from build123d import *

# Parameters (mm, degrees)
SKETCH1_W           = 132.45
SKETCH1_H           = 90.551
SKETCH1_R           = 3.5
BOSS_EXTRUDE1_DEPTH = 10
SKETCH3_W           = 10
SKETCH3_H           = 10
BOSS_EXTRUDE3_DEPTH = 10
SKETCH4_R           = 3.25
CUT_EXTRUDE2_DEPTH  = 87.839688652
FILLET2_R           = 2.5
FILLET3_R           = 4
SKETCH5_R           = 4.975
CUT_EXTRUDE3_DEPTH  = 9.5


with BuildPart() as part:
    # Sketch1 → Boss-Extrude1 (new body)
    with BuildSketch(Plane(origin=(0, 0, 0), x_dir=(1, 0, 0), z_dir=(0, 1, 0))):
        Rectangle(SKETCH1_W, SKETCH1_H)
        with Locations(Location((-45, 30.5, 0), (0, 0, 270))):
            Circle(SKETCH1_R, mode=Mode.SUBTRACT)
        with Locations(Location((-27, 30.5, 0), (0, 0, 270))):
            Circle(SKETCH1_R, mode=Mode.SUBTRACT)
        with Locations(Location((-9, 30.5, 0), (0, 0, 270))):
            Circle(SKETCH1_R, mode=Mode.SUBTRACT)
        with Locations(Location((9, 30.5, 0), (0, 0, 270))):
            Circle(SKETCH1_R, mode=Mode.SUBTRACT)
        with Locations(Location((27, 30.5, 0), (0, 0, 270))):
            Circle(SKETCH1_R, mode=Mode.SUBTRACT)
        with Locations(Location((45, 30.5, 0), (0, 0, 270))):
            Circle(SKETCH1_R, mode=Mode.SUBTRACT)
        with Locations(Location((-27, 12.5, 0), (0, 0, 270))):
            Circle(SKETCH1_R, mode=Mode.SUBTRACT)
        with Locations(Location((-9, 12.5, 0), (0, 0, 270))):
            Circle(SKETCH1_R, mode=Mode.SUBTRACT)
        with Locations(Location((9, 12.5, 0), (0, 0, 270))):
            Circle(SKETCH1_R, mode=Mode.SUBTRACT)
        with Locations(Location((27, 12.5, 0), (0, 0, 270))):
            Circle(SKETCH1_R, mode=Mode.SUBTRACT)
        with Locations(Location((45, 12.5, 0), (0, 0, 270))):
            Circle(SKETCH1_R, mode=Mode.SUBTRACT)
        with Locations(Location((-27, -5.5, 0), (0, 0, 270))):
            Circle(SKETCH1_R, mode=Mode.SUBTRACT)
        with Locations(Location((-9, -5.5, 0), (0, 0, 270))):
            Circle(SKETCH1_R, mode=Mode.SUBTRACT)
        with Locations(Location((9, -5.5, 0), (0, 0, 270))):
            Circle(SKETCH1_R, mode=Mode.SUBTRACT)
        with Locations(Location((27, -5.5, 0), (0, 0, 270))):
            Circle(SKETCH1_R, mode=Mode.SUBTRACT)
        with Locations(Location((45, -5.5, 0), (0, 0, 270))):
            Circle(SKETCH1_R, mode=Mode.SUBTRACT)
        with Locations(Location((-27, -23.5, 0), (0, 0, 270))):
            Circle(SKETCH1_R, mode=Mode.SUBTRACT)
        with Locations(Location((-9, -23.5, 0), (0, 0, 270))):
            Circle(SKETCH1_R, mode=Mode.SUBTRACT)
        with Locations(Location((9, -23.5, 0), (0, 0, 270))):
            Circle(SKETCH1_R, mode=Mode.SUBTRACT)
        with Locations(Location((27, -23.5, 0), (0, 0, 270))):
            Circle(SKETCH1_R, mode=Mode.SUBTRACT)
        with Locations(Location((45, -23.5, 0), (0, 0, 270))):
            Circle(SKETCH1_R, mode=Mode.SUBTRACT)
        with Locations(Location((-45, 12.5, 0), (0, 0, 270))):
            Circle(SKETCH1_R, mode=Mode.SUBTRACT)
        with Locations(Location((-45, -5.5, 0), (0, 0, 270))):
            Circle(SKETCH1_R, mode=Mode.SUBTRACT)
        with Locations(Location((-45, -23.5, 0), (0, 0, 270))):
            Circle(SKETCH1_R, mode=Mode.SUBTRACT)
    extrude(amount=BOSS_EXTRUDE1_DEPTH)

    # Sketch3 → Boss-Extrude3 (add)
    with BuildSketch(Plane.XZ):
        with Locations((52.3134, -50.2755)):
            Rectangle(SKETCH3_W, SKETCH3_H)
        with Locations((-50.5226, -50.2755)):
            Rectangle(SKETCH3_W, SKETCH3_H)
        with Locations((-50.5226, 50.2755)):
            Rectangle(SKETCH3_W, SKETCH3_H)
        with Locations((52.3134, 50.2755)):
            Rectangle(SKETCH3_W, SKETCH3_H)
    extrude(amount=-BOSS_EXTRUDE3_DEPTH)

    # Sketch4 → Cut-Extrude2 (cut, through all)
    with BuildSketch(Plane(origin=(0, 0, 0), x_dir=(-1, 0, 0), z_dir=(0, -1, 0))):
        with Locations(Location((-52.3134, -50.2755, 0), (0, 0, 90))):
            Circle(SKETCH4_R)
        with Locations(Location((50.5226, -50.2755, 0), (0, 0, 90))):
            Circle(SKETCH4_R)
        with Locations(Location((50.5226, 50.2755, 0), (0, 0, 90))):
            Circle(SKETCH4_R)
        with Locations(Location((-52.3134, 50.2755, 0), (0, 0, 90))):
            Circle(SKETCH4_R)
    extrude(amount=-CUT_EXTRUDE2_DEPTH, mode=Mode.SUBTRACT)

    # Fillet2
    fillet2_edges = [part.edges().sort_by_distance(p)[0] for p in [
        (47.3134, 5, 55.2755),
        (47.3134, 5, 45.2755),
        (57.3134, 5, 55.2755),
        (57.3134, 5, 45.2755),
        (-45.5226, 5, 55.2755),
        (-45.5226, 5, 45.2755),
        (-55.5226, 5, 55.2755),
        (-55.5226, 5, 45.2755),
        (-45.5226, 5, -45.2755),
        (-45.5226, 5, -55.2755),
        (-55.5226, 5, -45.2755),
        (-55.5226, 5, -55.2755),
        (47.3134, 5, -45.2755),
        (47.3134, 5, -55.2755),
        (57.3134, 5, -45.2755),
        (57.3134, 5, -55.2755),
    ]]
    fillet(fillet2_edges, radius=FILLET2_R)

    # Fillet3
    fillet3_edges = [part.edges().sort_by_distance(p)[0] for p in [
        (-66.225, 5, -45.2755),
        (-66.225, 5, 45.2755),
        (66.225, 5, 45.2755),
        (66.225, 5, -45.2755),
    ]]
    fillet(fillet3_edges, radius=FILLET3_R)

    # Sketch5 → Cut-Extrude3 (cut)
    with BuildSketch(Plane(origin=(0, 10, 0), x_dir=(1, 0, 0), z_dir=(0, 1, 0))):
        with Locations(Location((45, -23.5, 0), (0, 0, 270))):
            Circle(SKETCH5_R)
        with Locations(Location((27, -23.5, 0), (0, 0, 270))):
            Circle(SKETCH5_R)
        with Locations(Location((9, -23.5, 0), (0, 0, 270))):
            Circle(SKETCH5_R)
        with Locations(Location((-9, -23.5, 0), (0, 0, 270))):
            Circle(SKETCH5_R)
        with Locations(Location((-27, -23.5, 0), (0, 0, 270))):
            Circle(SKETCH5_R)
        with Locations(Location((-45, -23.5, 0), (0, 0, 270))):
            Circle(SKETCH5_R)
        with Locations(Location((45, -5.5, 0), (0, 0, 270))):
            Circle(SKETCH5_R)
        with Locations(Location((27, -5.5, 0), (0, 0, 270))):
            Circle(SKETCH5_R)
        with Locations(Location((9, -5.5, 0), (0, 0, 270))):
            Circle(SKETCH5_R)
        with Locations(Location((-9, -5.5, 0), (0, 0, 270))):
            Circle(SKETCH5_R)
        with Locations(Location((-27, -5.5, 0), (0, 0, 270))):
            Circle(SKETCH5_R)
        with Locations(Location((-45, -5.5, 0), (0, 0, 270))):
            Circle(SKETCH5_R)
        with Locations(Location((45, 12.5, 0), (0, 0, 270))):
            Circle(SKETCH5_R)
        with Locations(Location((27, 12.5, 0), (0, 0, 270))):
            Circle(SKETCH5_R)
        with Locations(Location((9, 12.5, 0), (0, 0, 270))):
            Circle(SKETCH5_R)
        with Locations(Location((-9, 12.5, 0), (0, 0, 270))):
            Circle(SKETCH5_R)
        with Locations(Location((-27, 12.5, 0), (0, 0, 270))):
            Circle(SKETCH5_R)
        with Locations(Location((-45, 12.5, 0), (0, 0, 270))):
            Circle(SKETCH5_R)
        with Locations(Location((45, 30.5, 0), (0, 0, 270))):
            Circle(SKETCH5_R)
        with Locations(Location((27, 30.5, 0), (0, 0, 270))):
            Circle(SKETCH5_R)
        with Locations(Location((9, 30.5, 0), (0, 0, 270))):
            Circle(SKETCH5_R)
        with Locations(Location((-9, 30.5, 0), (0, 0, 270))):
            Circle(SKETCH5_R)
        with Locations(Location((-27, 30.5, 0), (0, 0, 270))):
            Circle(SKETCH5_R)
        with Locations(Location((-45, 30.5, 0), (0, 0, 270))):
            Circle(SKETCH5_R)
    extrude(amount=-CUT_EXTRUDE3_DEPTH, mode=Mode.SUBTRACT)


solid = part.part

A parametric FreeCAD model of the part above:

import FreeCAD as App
import Part
import Sketcher
Q = App.Units.Quantity


def edges_at(feature, points):
    """Names of the edges that pass closest to the given points."""
    edges = feature.Shape.Edges
    near = lambda p: min(range(len(edges)), key=lambda i: edges[i].distToShape(Part.Vertex(*p))[0])
    return sorted({f"Edge{near(p) + 1}" for p in points})

doc = App.newDocument("Part")
body = doc.addObject("PartDesign::Body", "Body")

# Sketch on XZ plane
sketch1 = doc.addObject("Sketcher::SketchObject", "Sketch")
body.addObject(sketch1)
sketch1.AttachmentSupport = (doc.XZ_Plane, [""])
sketch1.MapMode = "FlatFace"
sketch1.addGeometry([
    Part.LineSegment(App.Vector(-66.225, -45.2755, 0), App.Vector(-66.225, 45.2755, 0)),  # 0
    Part.LineSegment(App.Vector(-66.225, 45.2755, 0), App.Vector(66.225, 45.2755, 0)),  # 1
    Part.LineSegment(App.Vector(66.225, 45.2755, 0), App.Vector(66.225, -45.2755, 0)),  # 2
    Part.LineSegment(App.Vector(66.225, -45.2755, 0), App.Vector(-66.225, -45.2755, 0)),  # 3
    Part.Circle(App.Vector(-45, 23.5, 0), App.Vector(0, 0, 1), 3.5),  # 4
    Part.Circle(App.Vector(-27, 23.5, 0), App.Vector(0, 0, 1), 3.5),  # 5
    Part.Circle(App.Vector(-9, 23.5, 0), App.Vector(0, 0, 1), 3.5),  # 6
    Part.Circle(App.Vector(-45, 5.5, 0), App.Vector(0, 0, 1), 3.5),  # 7
    Part.Circle(App.Vector(-27, 5.5, 0), App.Vector(0, 0, 1), 3.5),  # 8
    Part.Circle(App.Vector(-9, 5.5, 0), App.Vector(0, 0, 1), 3.5),  # 9
    Part.Circle(App.Vector(9, 23.5, 0), App.Vector(0, 0, 1), 3.5),  # 10
    Part.Circle(App.Vector(27, 23.5, 0), App.Vector(0, 0, 1), 3.5),  # 11
    Part.Circle(App.Vector(45, 23.5, 0), App.Vector(0, 0, 1), 3.5),  # 12
    Part.Circle(App.Vector(9, 5.5, 0), App.Vector(0, 0, 1), 3.5),  # 13
    Part.Circle(App.Vector(27, 5.5, 0), App.Vector(0, 0, 1), 3.5),  # 14
    Part.Circle(App.Vector(45, 5.5, 0), App.Vector(0, 0, 1), 3.5),  # 15
    Part.Circle(App.Vector(-45, -12.5, 0), App.Vector(0, 0, 1), 3.5),  # 16
    Part.Circle(App.Vector(-27, -12.5, 0), App.Vector(0, 0, 1), 3.5),  # 17
    Part.Circle(App.Vector(-9, -12.5, 0), App.Vector(0, 0, 1), 3.5),  # 18
    Part.Circle(App.Vector(-45, -30.5, 0), App.Vector(0, 0, 1), 3.5),  # 19
    Part.Circle(App.Vector(-27, -30.5, 0), App.Vector(0, 0, 1), 3.5),  # 20
    Part.Circle(App.Vector(-9, -30.5, 0), App.Vector(0, 0, 1), 3.5),  # 21
    Part.Circle(App.Vector(9, -12.5, 0), App.Vector(0, 0, 1), 3.5),  # 22
    Part.Circle(App.Vector(27, -12.5, 0), App.Vector(0, 0, 1), 3.5),  # 23
    Part.Circle(App.Vector(45, -12.5, 0), App.Vector(0, 0, 1), 3.5),  # 24
    Part.Circle(App.Vector(9, -30.5, 0), App.Vector(0, 0, 1), 3.5),  # 25
    Part.Circle(App.Vector(27, -30.5, 0), App.Vector(0, 0, 1), 3.5),  # 26
    Part.Circle(App.Vector(45, -30.5, 0), App.Vector(0, 0, 1), 3.5),  # 27
], False)
sketch1.addConstraint([
    Sketcher.Constraint("Coincident", 0, 2, 1, 1),
    Sketcher.Constraint("Coincident", 1, 2, 2, 1),
    Sketcher.Constraint("Coincident", 2, 2, 3, 1),
    Sketcher.Constraint("Coincident", 3, 2, 0, 1),
    Sketcher.Constraint("Vertical", 0),
    Sketcher.Constraint("Horizontal", 1),
    Sketcher.Constraint("Vertical", 2),
    Sketcher.Constraint("Horizontal", 3),
    Sketcher.Constraint("Equal", 4, 5),
    Sketcher.Constraint("Equal", 5, 6),
    Sketcher.Constraint("Equal", 6, 7),
    Sketcher.Constraint("Equal", 7, 8),
    Sketcher.Constraint("Equal", 8, 9),
    Sketcher.Constraint("Equal", 9, 10),
    Sketcher.Constraint("Equal", 10, 11),
    Sketcher.Constraint("Equal", 11, 12),
    Sketcher.Constraint("Equal", 12, 13),
    Sketcher.Constraint("Equal", 13, 14),
    Sketcher.Constraint("Equal", 14, 15),
    Sketcher.Constraint("Equal", 15, 16),
    Sketcher.Constraint("Equal", 16, 17),
    Sketcher.Constraint("Equal", 17, 18),
    Sketcher.Constraint("Equal", 18, 19),
    Sketcher.Constraint("Equal", 19, 20),
    Sketcher.Constraint("Equal", 20, 21),
    Sketcher.Constraint("Equal", 21, 22),
    Sketcher.Constraint("Equal", 22, 23),
    Sketcher.Constraint("Equal", 23, 24),
    Sketcher.Constraint("Equal", 24, 25),
    Sketcher.Constraint("Equal", 25, 26),
    Sketcher.Constraint("Equal", 26, 27),
    Sketcher.Constraint("Symmetric", 0, 2, 2, 2, -1, 1),
    Sketcher.Constraint("Symmetric", 6, 3, 10, 3, -2),
    Sketcher.Constraint("Symmetric", 5, 3, 11, 3, -2),
    Sketcher.Constraint("Symmetric", 4, 3, 12, 3, -2),
    Sketcher.Constraint("Symmetric", 9, 3, 13, 3, -2),
    Sketcher.Constraint("Symmetric", 8, 3, 14, 3, -2),
    Sketcher.Constraint("Symmetric", 7, 3, 15, 3, -2),
    Sketcher.Constraint("Symmetric", 18, 3, 22, 3, -2),
    Sketcher.Constraint("Symmetric", 17, 3, 23, 3, -2),
    Sketcher.Constraint("Symmetric", 16, 3, 24, 3, -2),
    Sketcher.Constraint("Symmetric", 21, 3, 25, 3, -2),
    Sketcher.Constraint("Symmetric", 20, 3, 26, 3, -2),
    Sketcher.Constraint("Symmetric", 19, 3, 27, 3, -2),
    Sketcher.Constraint("Horizontal", 4, 3, 5, 3),
    Sketcher.Constraint("Horizontal", 5, 3, 6, 3),
    Sketcher.Constraint("Horizontal", 7, 3, 8, 3),
    Sketcher.Constraint("Horizontal", 8, 3, 9, 3),
    Sketcher.Constraint("Horizontal", 16, 3, 17, 3),
    Sketcher.Constraint("Horizontal", 17, 3, 18, 3),
    Sketcher.Constraint("Horizontal", 19, 3, 20, 3),
    Sketcher.Constraint("Horizontal", 20, 3, 21, 3),
    Sketcher.Constraint("Vertical", 4, 3, 7, 3),
    Sketcher.Constraint("Vertical", 5, 3, 8, 3),
    Sketcher.Constraint("Vertical", 6, 3, 9, 3),
    Sketcher.Constraint("Vertical", 7, 3, 16, 3),
    Sketcher.Constraint("Vertical", 8, 3, 17, 3),
    Sketcher.Constraint("Vertical", 9, 3, 18, 3),
    Sketcher.Constraint("Vertical", 16, 3, 19, 3),
    Sketcher.Constraint("Vertical", 17, 3, 20, 3),
    Sketcher.Constraint("Vertical", 18, 3, 21, 3),
    Sketcher.Constraint("Diameter", 4, Q("7 mm")),
    Sketcher.Constraint("DistanceX", 4, 3, -1, 1, Q("45 mm")),
    Sketcher.Constraint("DistanceX", 5, 3, -1, 1, Q("27 mm")),
    Sketcher.Constraint("DistanceX", 6, 3, -1, 1, Q("9 mm")),
    Sketcher.Constraint("DistanceY", 7, 3, 4, 3, Q("18 mm")),
    Sketcher.Constraint("DistanceY", 16, 3, 7, 3, Q("18 mm")),
    Sketcher.Constraint("DistanceY", 19, 3, 16, 3, Q("18 mm")),
    Sketcher.Constraint("DistanceX", 1, 1, 1, 2, Q("132.45 mm")),
    Sketcher.Constraint("DistanceY", -1, 1, 4, 3, Q("23.5 mm")),
    Sketcher.Constraint("DistanceY", 0, 1, 0, 2, Q("90.551 mm")),
])
pad1 = doc.addObject("PartDesign::Pad", "Pad")
body.addObject(pad1)
pad1.Profile = sketch1
pad1.Length = 10
pad1.Reversed = True

# Sketch on XZ plane
sketch2 = doc.addObject("Sketcher::SketchObject", "Sketch001")
body.addObject(sketch2)
sketch2.AttachmentSupport = (doc.XZ_Plane, [""])
sketch2.MapMode = "FlatFace"
sketch2.addGeometry([
    Part.LineSegment(App.Vector(47.3134, -45.2755, 0), App.Vector(47.3134, -55.2755, 0)),  # 0
    Part.LineSegment(App.Vector(47.3134, -55.2755, 0), App.Vector(57.3134, -55.2755, 0)),  # 1
    Part.LineSegment(App.Vector(57.3134, -55.2755, 0), App.Vector(57.3134, -45.2755, 0)),  # 2
    Part.LineSegment(App.Vector(57.3134, -45.2755, 0), App.Vector(47.3134, -45.2755, 0)),  # 3
    Part.LineSegment(App.Vector(-55.5226, -45.2755, 0), App.Vector(-55.5226, -55.2755, 0)),  # 4
    Part.LineSegment(App.Vector(-55.5226, -55.2755, 0), App.Vector(-45.5226, -55.2755, 0)),  # 5
    Part.LineSegment(App.Vector(-45.5226, -55.2755, 0), App.Vector(-45.5226, -45.2755, 0)),  # 6
    Part.LineSegment(App.Vector(-45.5226, -45.2755, 0), App.Vector(-55.5226, -45.2755, 0)),  # 7
    Part.LineSegment(App.Vector(-55.5226, 55.2755, 0), App.Vector(-55.5226, 45.2755, 0)),  # 8
    Part.LineSegment(App.Vector(-55.5226, 45.2755, 0), App.Vector(-45.5226, 45.2755, 0)),  # 9
    Part.LineSegment(App.Vector(-45.5226, 45.2755, 0), App.Vector(-45.5226, 55.2755, 0)),  # 10
    Part.LineSegment(App.Vector(-45.5226, 55.2755, 0), App.Vector(-55.5226, 55.2755, 0)),  # 11
    Part.LineSegment(App.Vector(47.3134, 55.2755, 0), App.Vector(47.3134, 45.2755, 0)),  # 12
    Part.LineSegment(App.Vector(47.3134, 45.2755, 0), App.Vector(57.3134, 45.2755, 0)),  # 13
    Part.LineSegment(App.Vector(57.3134, 45.2755, 0), App.Vector(57.3134, 55.2755, 0)),  # 14
    Part.LineSegment(App.Vector(57.3134, 55.2755, 0), App.Vector(47.3134, 55.2755, 0)),  # 15
], False)
sketch2.addConstraint([
    Sketcher.Constraint("Coincident", 0, 2, 1, 1),
    Sketcher.Constraint("Coincident", 1, 2, 2, 1),
    Sketcher.Constraint("Coincident", 2, 2, 3, 1),
    Sketcher.Constraint("Coincident", 3, 2, 0, 1),
    Sketcher.Constraint("Coincident", 4, 2, 5, 1),
    Sketcher.Constraint("Coincident", 5, 2, 6, 1),
    Sketcher.Constraint("Coincident", 6, 2, 7, 1),
    Sketcher.Constraint("Coincident", 7, 2, 4, 1),
    Sketcher.Constraint("Coincident", 8, 2, 9, 1),
    Sketcher.Constraint("Coincident", 9, 2, 10, 1),
    Sketcher.Constraint("Coincident", 10, 2, 11, 1),
    Sketcher.Constraint("Coincident", 11, 2, 8, 1),
    Sketcher.Constraint("Coincident", 12, 2, 13, 1),
    Sketcher.Constraint("Coincident", 13, 2, 14, 1),
    Sketcher.Constraint("Coincident", 14, 2, 15, 1),
    Sketcher.Constraint("Coincident", 15, 2, 12, 1),
    Sketcher.Constraint("Vertical", 0),
    Sketcher.Constraint("Horizontal", 1),
    Sketcher.Constraint("Vertical", 2),
    Sketcher.Constraint("Horizontal", 3),
    Sketcher.Constraint("Vertical", 4),
    Sketcher.Constraint("Horizontal", 5),
    Sketcher.Constraint("Vertical", 6),
    Sketcher.Constraint("Horizontal", 7),
    Sketcher.Constraint("Vertical", 8),
    Sketcher.Constraint("Horizontal", 9),
    Sketcher.Constraint("Vertical", 10),
    Sketcher.Constraint("Horizontal", 11),
    Sketcher.Constraint("Vertical", 12),
    Sketcher.Constraint("Horizontal", 13),
    Sketcher.Constraint("Vertical", 14),
    Sketcher.Constraint("Horizontal", 15),
    Sketcher.Constraint("Symmetric", 7, 2, 8, 2, -1),
    Sketcher.Constraint("Symmetric", 5, 2, 10, 2, -1),
    Sketcher.Constraint("Symmetric", 3, 2, 12, 2, -1),
    Sketcher.Constraint("Symmetric", 1, 2, 14, 2, -1),
    Sketcher.Constraint("Horizontal", 1, 2, 4, 2),
    Sketcher.Constraint("Horizontal", 3, 2, 6, 2),
    Sketcher.Constraint("Equal", 3, 5),
    Sketcher.Constraint("Equal", 15, 0),
    Sketcher.Constraint("DistanceX", 1, 1, 1, 2, Q("10 mm")),
    Sketcher.Constraint("DistanceX", 4, 2, 0, 2, Q("102.836 mm")),
    Sketcher.Constraint("DistanceY", 7, 2, 8, 2, Q("90.551 mm")),
    Sketcher.Constraint("DistanceX", -1, 1, 0, 2, Q("47.3134 mm")),
])
pad2 = doc.addObject("PartDesign::Pad", "Pad001")
body.addObject(pad2)
pad2.Profile = sketch2
pad2.Length = 10
pad2.Reversed = True

# Sketch on XZ plane
sketch3 = doc.addObject("Sketcher::SketchObject", "Sketch002")
body.addObject(sketch3)
sketch3.AttachmentSupport = (doc.XZ_Plane, [""])
sketch3.MapMode = "FlatFace"
sketch3.addGeometry([
    Part.Circle(App.Vector(52.3134, 50.2755, 0), App.Vector(0, 0, 1), 3.25),
    Part.Circle(App.Vector(-50.5226, 50.2755, 0), App.Vector(0, 0, 1), 3.25),
    Part.Circle(App.Vector(-50.5226, -50.2755, 0), App.Vector(0, 0, 1), 3.25),
    Part.Circle(App.Vector(52.3134, -50.2755, 0), App.Vector(0, 0, 1), 3.25),
], False)
sketch3.addConstraint([
    Sketcher.Constraint("Equal", 0, 1),
    Sketcher.Constraint("Equal", 1, 2),
    Sketcher.Constraint("Equal", 2, 3),
    Sketcher.Constraint("Symmetric", 1, 3, 2, 3, -1),
    Sketcher.Constraint("Symmetric", 0, 3, 3, 3, -1),
    Sketcher.Constraint("Horizontal", 0, 3, 1, 3),
    Sketcher.Constraint("Diameter", 0, Q("6.5 mm")),
    Sketcher.Constraint("DistanceX", 1, 3, 0, 3, Q("102.836 mm")),
    Sketcher.Constraint("DistanceY", 2, 3, 1, 3, Q("100.551 mm")),
    Sketcher.Constraint("DistanceX", -1, 1, 0, 3, Q("52.3134 mm")),
])
pocket1 = doc.addObject("PartDesign::Pocket", "Pocket")
body.addObject(pocket1)
pocket1.Profile = sketch3
pocket1.Type = "ThroughAll"
doc.recompute()

fillet = doc.addObject("PartDesign::Fillet", "Fillet")
body.addObject(fillet)
fillet.Base = (pocket1, edges_at(pocket1, [
    (47.313, 5, 55.276),
    (47.313, 5, 45.276),
    (57.313, 5, 55.276),
    (57.313, 5, 45.276),
    (-45.523, 5, 55.276),
    (-45.523, 5, 45.276),
    (-55.523, 5, 55.276),
    (-55.523, 5, 45.276),
    (-45.523, 5, -45.276),
    (-45.523, 5, -55.276),
    (-55.523, 5, -45.276),
    (-55.523, 5, -55.276),
    (47.313, 5, -45.276),
    (47.313, 5, -55.276),
    (57.313, 5, -45.276),
    (57.313, 5, -55.276),
]))
fillet.Radius = 2.5
doc.recompute()

fillet2 = doc.addObject("PartDesign::Fillet", "Fillet001")
body.addObject(fillet2)
fillet2.Base = (fillet, edges_at(fillet, [
    (-66.225, 5, -45.276),
    (-66.225, 5, 45.276),
    (66.225, 5, 45.276),
    (66.225, 5, -45.276),
]))
fillet2.Radius = 4

# Sketch on XZ plane
sketch4 = doc.addObject("Sketcher::SketchObject", "Sketch003")
body.addObject(sketch4)
sketch4.AttachmentSupport = (doc.XZ_Plane, [""])
sketch4.MapMode = "FlatFace"
sketch4.AttachmentOffset = App.Placement(App.Vector(0, 0, -10), App.Rotation())
sketch4.addGeometry([
    Part.Circle(App.Vector(45, 23.5, 0), App.Vector(0, 0, 1), 4.975),  # 0
    Part.Circle(App.Vector(27, 23.5, 0), App.Vector(0, 0, 1), 4.975),  # 1
    Part.Circle(App.Vector(9, 23.5, 0), App.Vector(0, 0, 1), 4.975),  # 2
    Part.Circle(App.Vector(-9, 23.5, 0), App.Vector(0, 0, 1), 4.975),  # 3
    Part.Circle(App.Vector(-27, 23.5, 0), App.Vector(0, 0, 1), 4.975),  # 4
    Part.Circle(App.Vector(-45, 23.5, 0), App.Vector(0, 0, 1), 4.975),  # 5
    Part.Circle(App.Vector(45, 5.5, 0), App.Vector(0, 0, 1), 4.975),  # 6
    Part.Circle(App.Vector(27, 5.5, 0), App.Vector(0, 0, 1), 4.975),  # 7
    Part.Circle(App.Vector(9, 5.5, 0), App.Vector(0, 0, 1), 4.975),  # 8
    Part.Circle(App.Vector(-9, 5.5, 0), App.Vector(0, 0, 1), 4.975),  # 9
    Part.Circle(App.Vector(-27, 5.5, 0), App.Vector(0, 0, 1), 4.975),  # 10
    Part.Circle(App.Vector(-45, 5.5, 0), App.Vector(0, 0, 1), 4.975),  # 11
    Part.Circle(App.Vector(45, -12.5, 0), App.Vector(0, 0, 1), 4.975),  # 12
    Part.Circle(App.Vector(27, -12.5, 0), App.Vector(0, 0, 1), 4.975),  # 13
    Part.Circle(App.Vector(9, -12.5, 0), App.Vector(0, 0, 1), 4.975),  # 14
    Part.Circle(App.Vector(-9, -12.5, 0), App.Vector(0, 0, 1), 4.975),  # 15
    Part.Circle(App.Vector(-27, -12.5, 0), App.Vector(0, 0, 1), 4.975),  # 16
    Part.Circle(App.Vector(-45, -12.5, 0), App.Vector(0, 0, 1), 4.975),  # 17
    Part.Circle(App.Vector(45, -30.5, 0), App.Vector(0, 0, 1), 4.975),  # 18
    Part.Circle(App.Vector(27, -30.5, 0), App.Vector(0, 0, 1), 4.975),  # 19
    Part.Circle(App.Vector(9, -30.5, 0), App.Vector(0, 0, 1), 4.975),  # 20
    Part.Circle(App.Vector(-9, -30.5, 0), App.Vector(0, 0, 1), 4.975),  # 21
    Part.Circle(App.Vector(-27, -30.5, 0), App.Vector(0, 0, 1), 4.975),  # 22
    Part.Circle(App.Vector(-45, -30.5, 0), App.Vector(0, 0, 1), 4.975),  # 23
], False)
sketch4.addConstraint([
    Sketcher.Constraint("Equal", 0, 1),
    Sketcher.Constraint("Equal", 1, 2),
    Sketcher.Constraint("Equal", 2, 3),
    Sketcher.Constraint("Equal", 3, 4),
    Sketcher.Constraint("Equal", 4, 5),
    Sketcher.Constraint("Equal", 5, 6),
    Sketcher.Constraint("Equal", 6, 7),
    Sketcher.Constraint("Equal", 7, 8),
    Sketcher.Constraint("Equal", 8, 9),
    Sketcher.Constraint("Equal", 9, 10),
    Sketcher.Constraint("Equal", 10, 11),
    Sketcher.Constraint("Equal", 11, 12),
    Sketcher.Constraint("Equal", 12, 13),
    Sketcher.Constraint("Equal", 13, 14),
    Sketcher.Constraint("Equal", 14, 15),
    Sketcher.Constraint("Equal", 15, 16),
    Sketcher.Constraint("Equal", 16, 17),
    Sketcher.Constraint("Equal", 17, 18),
    Sketcher.Constraint("Equal", 18, 19),
    Sketcher.Constraint("Equal", 19, 20),
    Sketcher.Constraint("Equal", 20, 21),
    Sketcher.Constraint("Equal", 21, 22),
    Sketcher.Constraint("Equal", 22, 23),
    Sketcher.Constraint("Symmetric", 2, 3, 3, 3, -2),
    Sketcher.Constraint("Symmetric", 1, 3, 4, 3, -2),
    Sketcher.Constraint("Symmetric", 0, 3, 5, 3, -2),
    Sketcher.Constraint("Symmetric", 8, 3, 9, 3, -2),
    Sketcher.Constraint("Symmetric", 7, 3, 10, 3, -2),
    Sketcher.Constraint("Symmetric", 6, 3, 11, 3, -2),
    Sketcher.Constraint("Symmetric", 14, 3, 15, 3, -2),
    Sketcher.Constraint("Symmetric", 13, 3, 16, 3, -2),
    Sketcher.Constraint("Symmetric", 12, 3, 17, 3, -2),
    Sketcher.Constraint("Symmetric", 20, 3, 21, 3, -2),
    Sketcher.Constraint("Symmetric", 19, 3, 22, 3, -2),
    Sketcher.Constraint("Symmetric", 18, 3, 23, 3, -2),
    Sketcher.Constraint("Horizontal", 0, 3, 1, 3),
    Sketcher.Constraint("Horizontal", 1, 3, 2, 3),
    Sketcher.Constraint("Horizontal", 6, 3, 7, 3),
    Sketcher.Constraint("Horizontal", 7, 3, 8, 3),
    Sketcher.Constraint("Horizontal", 12, 3, 13, 3),
    Sketcher.Constraint("Horizontal", 13, 3, 14, 3),
    Sketcher.Constraint("Horizontal", 18, 3, 19, 3),
    Sketcher.Constraint("Horizontal", 19, 3, 20, 3),
    Sketcher.Constraint("Vertical", 0, 3, 6, 3),
    Sketcher.Constraint("Vertical", 1, 3, 7, 3),
    Sketcher.Constraint("Vertical", 2, 3, 8, 3),
    Sketcher.Constraint("Vertical", 6, 3, 12, 3),
    Sketcher.Constraint("Vertical", 7, 3, 13, 3),
    Sketcher.Constraint("Vertical", 8, 3, 14, 3),
    Sketcher.Constraint("Vertical", 12, 3, 18, 3),
    Sketcher.Constraint("Vertical", 13, 3, 19, 3),
    Sketcher.Constraint("Vertical", 14, 3, 20, 3),
    Sketcher.Constraint("Diameter", 0, Q("9.95 mm")),
    Sketcher.Constraint("DistanceX", -1, 1, 0, 3, Q("45 mm")),
    Sketcher.Constraint("DistanceX", -1, 1, 1, 3, Q("27 mm")),
    Sketcher.Constraint("DistanceX", -1, 1, 2, 3, Q("9 mm")),
    Sketcher.Constraint("DistanceY", 6, 3, 0, 3, Q("18 mm")),
    Sketcher.Constraint("DistanceY", 12, 3, 6, 3, Q("18 mm")),
    Sketcher.Constraint("DistanceY", 18, 3, 12, 3, Q("18 mm")),
    Sketcher.Constraint("DistanceY", -1, 1, 0, 3, Q("23.5 mm")),
])
pocket2 = doc.addObject("PartDesign::Pocket", "Pocket001")
body.addObject(pocket2)
pocket2.Profile = sketch4
pocket2.Length = 9.5
pocket2.Reversed = True

doc.recompute()
